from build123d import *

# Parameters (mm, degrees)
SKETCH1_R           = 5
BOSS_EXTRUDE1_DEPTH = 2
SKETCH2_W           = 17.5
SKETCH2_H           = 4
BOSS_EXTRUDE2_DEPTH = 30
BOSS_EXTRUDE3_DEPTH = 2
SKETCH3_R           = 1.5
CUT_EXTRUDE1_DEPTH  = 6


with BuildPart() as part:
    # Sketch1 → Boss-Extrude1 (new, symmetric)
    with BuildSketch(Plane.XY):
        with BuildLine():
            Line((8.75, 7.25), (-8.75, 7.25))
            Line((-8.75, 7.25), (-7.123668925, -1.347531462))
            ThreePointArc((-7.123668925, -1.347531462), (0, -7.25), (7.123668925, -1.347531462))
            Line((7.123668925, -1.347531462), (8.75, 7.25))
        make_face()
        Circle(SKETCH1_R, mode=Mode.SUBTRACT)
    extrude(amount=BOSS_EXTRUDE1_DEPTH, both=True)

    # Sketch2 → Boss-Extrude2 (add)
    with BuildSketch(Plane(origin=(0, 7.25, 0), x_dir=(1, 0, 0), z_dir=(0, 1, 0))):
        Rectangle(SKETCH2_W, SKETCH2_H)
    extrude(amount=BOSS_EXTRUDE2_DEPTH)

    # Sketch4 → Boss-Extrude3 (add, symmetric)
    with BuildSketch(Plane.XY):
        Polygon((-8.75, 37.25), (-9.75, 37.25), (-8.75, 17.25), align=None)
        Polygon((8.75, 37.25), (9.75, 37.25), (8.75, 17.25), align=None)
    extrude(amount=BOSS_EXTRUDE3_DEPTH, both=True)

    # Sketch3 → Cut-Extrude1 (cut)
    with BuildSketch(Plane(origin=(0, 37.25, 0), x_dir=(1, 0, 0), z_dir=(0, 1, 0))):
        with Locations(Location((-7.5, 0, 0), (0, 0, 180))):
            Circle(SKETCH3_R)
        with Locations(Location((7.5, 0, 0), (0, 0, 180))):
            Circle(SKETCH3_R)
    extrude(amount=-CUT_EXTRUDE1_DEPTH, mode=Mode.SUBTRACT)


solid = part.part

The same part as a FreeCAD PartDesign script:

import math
import FreeCAD as App
import Part
import Sketcher
from FreeCAD import Vector
Q = App.Units.Quantity

doc = App.newDocument("Part")
body = doc.addObject("PartDesign::Body", "Body")

# Sketch on XY plane
sketch1 = body.newObject("Sketcher::SketchObject", "Sketch")
sketch1.AttachmentSupport = (doc.getObject("XY_Plane"), [""])
sketch1.MapMode = "FlatFace"
sketch1.addGeometry([
    Part.LineSegment(Vector(9, 7, 0), Vector(-9, 7, 0)),  # 0
    Part.LineSegment(Vector(-9, 7, 0), Vector(-7, -1, 0)),  # 1
    Part.ArcOfCircle(Part.Circle(Vector(0, 0, 0), Vector(0, 0, 1), 7), math.radians(-169), math.radians(-11)),  # 2
    Part.LineSegment(Vector(7, -1, 0), Vector(9, 7, 0)),  # 3
    Part.Circle(Vector(0, 0, 0), Vector(0, 0, 1), 5),  # 4
], False)
sketch1.addConstraint([
    Sketcher.Constraint("Coincident", 0, 2, 1, 1),
    Sketcher.Constraint("Tangent", 1, 2, 2, 1),
    Sketcher.Constraint("Tangent", 2, 2, 3, 1),
    Sketcher.Constraint("Coincident", 3, 2, 0, 1),
    Sketcher.Constraint("Horizontal", 0),
    Sketcher.Constraint("Coincident", 2, 3, -1, 1),
    Sketcher.Constraint("Coincident", 4, 3, -1, 1),
    Sketcher.Constraint("Horizontal", 1, 2, 2, 2),
    Sketcher.Constraint("Diameter", 4, Q("10 mm")),
    Sketcher.Constraint("Radius", 2, Q("7.25 mm")),
    Sketcher.Constraint("DistanceX", 0, 2, 0, 1, Q("17.5 mm")),
    Sketcher.Constraint("Distance", 1, Q("8.75 mm")),
])
pad1 = body.newObject("PartDesign::Pad", "Pad")
pad1.Profile = sketch1
pad1.Length = 4
pad1.Midplane = True

# Sketch on XZ plane
sketch2 = body.newObject("Sketcher::SketchObject", "Sketch001")
sketch2.AttachmentSupport = (doc.getObject("XZ_Plane"), [""])
sketch2.MapMode = "FlatFace"
sketch2.AttachmentOffset = App.Placement(Vector(0, 0, -7.25), App.Rotation())
sketch2.addGeometry([
    Part.LineSegment(Vector(-8.8, -2, 0), Vector(-8.8, 2, 0)),
    Part.LineSegment(Vector(-8.8, 2, 0), Vector(8.8, 2, 0)),
    Part.LineSegment(Vector(8.8, 2, 0), Vector(8.8, -2, 0)),
    Part.LineSegment(Vector(8.8, -2, 0), Vector(-8.8, -2, 0)),
], False)
sketch2.addConstraint([
    Sketcher.Constraint("Coincident", 0, 2, 1, 1),
    Sketcher.Constraint("Coincident", 1, 2, 2, 1),
    Sketcher.Constraint("Coincident", 2, 2, 3, 1),
    Sketcher.Constraint("Coincident", 3, 2, 0, 1),
    Sketcher.Constraint("Vertical", 0),
    Sketcher.Constraint("Horizontal", 1),
    Sketcher.Constraint("Vertical", 2),
    Sketcher.Constraint("Horizontal", 3),
    Sketcher.Constraint("Symmetric", 0, 2, 2, 2, -1, 1),
    Sketcher.Constraint("DistanceY", 0, 1, 0, 2, Q("4 mm")),
    Sketcher.Constraint("DistanceX", 1, 1, 1, 2, Q("17.5 mm")),
])
pad2 = body.newObject("PartDesign::Pad", "Pad001")
pad2.Profile = sketch2
pad2.Length = 30
pad2.Reversed = True

# Sketch on XY plane
sketch3 = body.newObject("Sketcher::SketchObject", "Sketch002")
sketch3.AttachmentSupport = (doc.getObject("XY_Plane"), [""])
sketch3.MapMode = "FlatFace"
sketch3.addGeometry([
    Part.LineSegment(Vector(-8.8, 37.2, 0), Vector(-9.8, 37.2, 0)),  # 0
    Part.LineSegment(Vector(-9.8, 37.2, 0), Vector(-8.8, 17.2, 0)),  # 1
    Part.LineSegment(Vector(-8.8, 17.2, 0), Vector(-8.8, 37.2, 0)),  # 2
    Part.LineSegment(Vector(9.8, 37.2, 0), Vector(8.8, 37.2, 0)),  # 3
    Part.LineSegment(Vector(8.8, 37.2, 0), Vector(8.8, 17.2, 0)),  # 4
    Part.LineSegment(Vector(8.8, 17.2, 0), Vector(9.8, 37.2, 0)),  # 5
], False)
sketch3.addConstraint([
    Sketcher.Constraint("Coincident", 0, 2, 1, 1),
    Sketcher.Constraint("Coincident", 1, 2, 2, 1),
    Sketcher.Constraint("Coincident", 2, 2, 0, 1),
    Sketcher.Constraint("Coincident", 3, 2, 4, 1),
    Sketcher.Constraint("Coincident", 4, 2, 5, 1),
    Sketcher.Constraint("Coincident", 5, 2, 3, 1),
    Sketcher.Constraint("Horizontal", 0),
    Sketcher.Constraint("Vertical", 2),
    Sketcher.Constraint("Horizontal", 3),
    Sketcher.Constraint("Vertical", 4),
    Sketcher.Constraint("Symmetric", 2, 2, 3, 2, -2),
    Sketcher.Constraint("Horizontal", 1, 2, 4, 2),
    Sketcher.Constraint("Equal", 0, 3),
    Sketcher.Constraint("DistanceX", 0, 2, 0, 1, Q("1 mm")),
    Sketcher.Constraint("DistanceY", 2, 1, 2, 2, Q("20 mm")),
    Sketcher.Constraint("DistanceX", 2, 2, 3, 2, Q("17.5 mm")),
    Sketcher.Constraint("DistanceY", -1, 1, 0, 2, Q("37.25 mm")),
])
pad3 = body.newObject("PartDesign::Pad", "Pad002")
pad3.Profile = sketch3
pad3.Length = 4
pad3.Midplane = True

# Sketch on XZ plane
sketch4 = body.newObject("Sketcher::SketchObject", "Sketch003")
sketch4.AttachmentSupport = (doc.getObject("XZ_Plane"), [""])
sketch4.MapMode = "FlatFace"
sketch4.AttachmentOffset = App.Placement(Vector(0, 0, -37.25), App.Rotation())
sketch4.addGeometry([
    Part.Circle(Vector(-7.5, 0, 0), Vector(0, 0, 1), 1.5),
    Part.Circle(Vector(7.5, 0, 0), Vector(0, 0, 1), 1.5),
], False)
sketch4.addConstraint([
    Sketcher.Constraint("Equal", 0, 1),
    Sketcher.Constraint("Symmetric", 0, 3, 1, 3, -1, 1),
    Sketcher.Constraint("PointOnObject", 0, 3, -1),
    Sketcher.Constraint("Diameter", 0, Q("3 mm")),
    Sketcher.Constraint("DistanceX", 0, 3, 1, 3, Q("15 mm")),
])
pocket1 = body.newObject("PartDesign::Pocket", "Pocket")
pocket1.Profile = sketch4
pocket1.Length = 6
pocket1.Reversed = True

doc.recompute()
